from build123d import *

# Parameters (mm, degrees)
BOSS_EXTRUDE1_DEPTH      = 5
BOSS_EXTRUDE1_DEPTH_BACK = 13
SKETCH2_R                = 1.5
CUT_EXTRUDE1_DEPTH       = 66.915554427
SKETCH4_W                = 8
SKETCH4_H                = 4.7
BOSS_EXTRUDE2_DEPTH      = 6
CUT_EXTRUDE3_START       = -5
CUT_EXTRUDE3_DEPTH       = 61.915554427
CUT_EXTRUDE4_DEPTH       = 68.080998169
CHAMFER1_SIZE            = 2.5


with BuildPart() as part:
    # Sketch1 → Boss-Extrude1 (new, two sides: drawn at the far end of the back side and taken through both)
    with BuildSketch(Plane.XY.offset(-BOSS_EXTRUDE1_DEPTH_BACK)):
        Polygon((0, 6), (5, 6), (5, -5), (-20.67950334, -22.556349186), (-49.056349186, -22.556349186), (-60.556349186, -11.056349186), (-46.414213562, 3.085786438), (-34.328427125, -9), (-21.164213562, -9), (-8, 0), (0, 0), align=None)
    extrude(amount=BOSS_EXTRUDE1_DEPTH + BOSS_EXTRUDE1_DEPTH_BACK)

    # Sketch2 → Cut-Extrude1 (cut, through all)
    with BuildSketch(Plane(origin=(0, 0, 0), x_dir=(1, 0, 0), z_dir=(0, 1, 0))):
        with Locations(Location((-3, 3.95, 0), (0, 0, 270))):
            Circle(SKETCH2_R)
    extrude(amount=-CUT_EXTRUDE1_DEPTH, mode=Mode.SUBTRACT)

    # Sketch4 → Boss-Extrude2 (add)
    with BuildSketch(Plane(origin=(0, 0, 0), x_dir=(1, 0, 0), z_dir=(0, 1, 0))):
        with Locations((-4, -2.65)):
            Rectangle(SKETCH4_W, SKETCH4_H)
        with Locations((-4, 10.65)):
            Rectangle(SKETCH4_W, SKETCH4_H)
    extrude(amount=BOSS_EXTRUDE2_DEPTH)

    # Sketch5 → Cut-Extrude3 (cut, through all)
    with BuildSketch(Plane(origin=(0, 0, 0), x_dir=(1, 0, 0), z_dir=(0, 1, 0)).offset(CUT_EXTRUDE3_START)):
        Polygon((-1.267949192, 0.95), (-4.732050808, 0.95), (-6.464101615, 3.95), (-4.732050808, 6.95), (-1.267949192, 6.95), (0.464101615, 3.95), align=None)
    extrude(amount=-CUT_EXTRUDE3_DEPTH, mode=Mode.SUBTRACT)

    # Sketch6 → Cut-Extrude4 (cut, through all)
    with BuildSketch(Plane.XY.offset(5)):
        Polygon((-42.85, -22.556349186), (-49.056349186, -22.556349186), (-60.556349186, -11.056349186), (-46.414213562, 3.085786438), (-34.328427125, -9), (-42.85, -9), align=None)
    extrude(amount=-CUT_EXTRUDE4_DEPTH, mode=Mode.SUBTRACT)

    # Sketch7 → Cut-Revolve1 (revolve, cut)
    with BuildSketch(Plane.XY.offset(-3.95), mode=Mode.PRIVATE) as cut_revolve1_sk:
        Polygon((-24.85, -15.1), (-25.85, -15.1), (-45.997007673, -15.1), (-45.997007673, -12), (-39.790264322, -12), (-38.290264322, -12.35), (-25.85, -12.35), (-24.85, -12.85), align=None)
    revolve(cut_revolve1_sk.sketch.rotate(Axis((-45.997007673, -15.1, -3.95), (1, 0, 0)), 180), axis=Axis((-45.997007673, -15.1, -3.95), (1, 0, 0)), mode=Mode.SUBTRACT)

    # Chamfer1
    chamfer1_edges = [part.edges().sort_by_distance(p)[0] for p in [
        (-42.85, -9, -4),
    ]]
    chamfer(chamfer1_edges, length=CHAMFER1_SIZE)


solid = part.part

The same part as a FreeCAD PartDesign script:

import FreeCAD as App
import Part
import Sketcher
Q = App.Units.Quantity


def edges_at(feature, points):
    """Names of the edges that pass closest to the given points."""
    edges = feature.Shape.Edges
    near = lambda p: min(range(len(edges)), key=lambda i: edges[i].distToShape(Part.Vertex(*p))[0])
    return sorted({f"Edge{near(p) + 1}" for p in points})


def add_polygon(sketch, points):
    """Adds a closed chain of lines whose ends are joined by coincident constraints."""
    first, n = sketch.GeometryCount, len(points)
    for a, b in zip(points, points[1:] + points[:1]):
        sketch.addGeometry(Part.LineSegment(App.Vector(*a, 0), App.Vector(*b, 0)), False)
    for i in range(n):
        sketch.addConstraint(Sketcher.Constraint("Coincident", first + i, 2, first + (i + 1) % n, 1))

doc = App.newDocument("Part")
body = doc.addObject("PartDesign::Body", "Body")

sketch1 = body.newObject("Sketcher::SketchObject", "Sketch")
sketch1.AttachmentSupport = (doc.getObject("XY_Plane"), [""])
sketch1.MapMode = "FlatFace"
add_polygon(sketch1, [(5, 6), (0, 6), (0, 0), (-8, 0), (-21, -9), (-34, -9), (-46, 3), (-61, -11), (-49, -23), (-21, -23), (5, -5)])
sketch1.addConstraint([
    Sketcher.Constraint("Horizontal", 0),
    Sketcher.Constraint("Vertical", 1),
    Sketcher.Constraint("Horizontal", 2),
    Sketcher.Constraint("Horizontal", 4),
    Sketcher.Constraint("Horizontal", 8),
    Sketcher.Constraint("Vertical", 10),
    Sketcher.Constraint("Coincident", 1, 2, -1, 1),
    Sketcher.Constraint("Perpendicular", 5, 6),
    Sketcher.Constraint("Perpendicular", 6, 7),
    Sketcher.Constraint("Parallel", 3, 9),
    Sketcher.Constraint("DistanceX", 0, 2, 0, 1, Q("5 mm")),
    Sketcher.Constraint("DistanceX", 2, 2, 2, 1, Q("8 mm")),
    Sketcher.Constraint("DistanceY", 1, 2, 1, 1, Q("6 mm")),
    Sketcher.Constraint("DistanceY", 10, 1, 10, 2, Q("11 mm")),
    Sketcher.Constraint("Angle", 5, Q("135 deg")),
    Sketcher.Constraint("Distance", 6, Q("20 mm")),
    Sketcher.Constraint("DistanceY", 3, 2, -1, 1, Q("9 mm")),
    Sketcher.Constraint("DistanceX", 6, 2, 7, 2, Q("11.5 mm")),
    Sketcher.Constraint("DistanceX", 5, 2, 3, 2, Q("25.25 mm")),
    Sketcher.Constraint("Distance", 9, Q("31.107271 mm")),
    Sketcher.Constraint("DistanceX", 4, 2, 4, 1, Q("13.164214 mm")),
])
pad1 = body.newObject("PartDesign::Pad", "Pad")
pad1.Profile = sketch1
pad1.Type = "TwoLengths"
pad1.Length = 5
pad1.Length2 = 13

sketch2 = body.newObject("Sketcher::SketchObject", "Sketch001")
sketch2.AttachmentSupport = (doc.getObject("XZ_Plane"), [""])
sketch2.MapMode = "FlatFace"
sketch2.addGeometry(Part.Circle(App.Vector(-3, -4, 0), App.Vector(0, 0, 1), 1.5), False)
sketch2.addConstraint([
    Sketcher.Constraint("Diameter", 0, Q("3 mm")),
    Sketcher.Constraint("DistanceX", 0, 3, -1, 1, Q("3 mm")),
    Sketcher.Constraint("DistanceY", 0, 3, -1, 1, Q("3.95 mm")),
])
pocket1 = body.newObject("PartDesign::Pocket", "Pocket")
pocket1.Profile = sketch2
pocket1.Type = "ThroughAll"
pocket1.Reversed = True

sketch3 = body.newObject("Sketcher::SketchObject", "Sketch002")
sketch3.AttachmentSupport = (doc.getObject("XZ_Plane"), [""])
sketch3.MapMode = "FlatFace"
add_polygon(sketch3, [(-8, 0.3), (-8, 5), (0, 5), (0, 0.3)])
add_polygon(sketch3, [(-8, -13), (-8, -8.3), (0, -8.3), (0, -13)])
sketch3.addConstraint([
    Sketcher.Constraint("Vertical", 0),
    Sketcher.Constraint("Horizontal", 1),
    Sketcher.Constraint("Vertical", 2),
    Sketcher.Constraint("Horizontal", 3),
    Sketcher.Constraint("Vertical", 4),
    Sketcher.Constraint("Horizontal", 5),
    Sketcher.Constraint("Vertical", 6),
    Sketcher.Constraint("Horizontal", 7),
    Sketcher.Constraint("PointOnObject", 1, 2, -2),
    Sketcher.Constraint("PointOnObject", 5, 2, -2),
    Sketcher.Constraint("Vertical", 3, 2, 4, 2),
    Sketcher.Constraint("Equal", 2, 4),
    Sketcher.Constraint("DistanceX", 1, 1, 1, 2, Q("8 mm")),
    Sketcher.Constraint("DistanceY", 0, 1, 0, 2, Q("4.7 mm")),
    Sketcher.Constraint("DistanceY", -1, 1, 0, 2, Q("5 mm")),
    Sketcher.Constraint("DistanceY", 6, 2, -1, 1, Q("13 mm")),
])
pad2 = body.newObject("PartDesign::Pad", "Pad001")
pad2.Profile = sketch3
pad2.Length = 6
pad2.Reversed = True

sketch4 = body.newObject("Sketcher::SketchObject", "Sketch003")
sketch4.AttachmentSupport = (doc.getObject("XZ_Plane"), [""])
sketch4.MapMode = "FlatFace"
sketch4.AttachmentOffset = App.Placement(App.Vector(0, 0, 5), App.Rotation())
add_polygon(sketch4, [(-4.7, -0.9), (-1.3, -0.9), (0.5, -4), (-1.3, -7), (-4.7, -7), (-6.5, -4)])
sketch4.addConstraint([
    Sketcher.Constraint("Horizontal", 0),
    Sketcher.Constraint("Horizontal", 3),
    Sketcher.Constraint("Parallel", 1, 4),
    Sketcher.Constraint("Parallel", 2, 5),
    Sketcher.Constraint("Horizontal", 1, 2, 4, 2),
    Sketcher.Constraint("Vertical", 0, 2, 2, 2),
    Sketcher.Constraint("Vertical", 3, 2, 5, 2),
    Sketcher.Constraint("Angle", 1, Q("-60 deg")),
    Sketcher.Constraint("DistanceY", 1, 2, 0, 2, Q("3 mm")),
    Sketcher.Constraint("DistanceY", 0, 2, -1, 1, Q("0.95 mm")),
    Sketcher.Constraint("DistanceX", 0, 1, 0, 2, Q("3.464102 mm")),
    Sketcher.Constraint("DistanceX", -1, 1, 1, 2, Q("0.464102 mm")),
])
pocket2 = body.newObject("PartDesign::Pocket", "Pocket001")
pocket2.Profile = sketch4
pocket2.Type = "ThroughAll"
pocket2.Reversed = True

sketch5 = body.newObject("Sketcher::SketchObject", "Sketch004")
sketch5.AttachmentSupport = (doc.getObject("XY_Plane"), [""])
sketch5.MapMode = "FlatFace"
sketch5.AttachmentOffset = App.Placement(App.Vector(0, 0, 5), App.Rotation())
add_polygon(sketch5, [(-49, -23), (-43, -23), (-43, -9), (-34, -9), (-46, 3), (-61, -11)])
sketch5.addConstraint([
    Sketcher.Constraint("Horizontal", 0),
    Sketcher.Constraint("Vertical", 1),
    Sketcher.Constraint("Horizontal", 2),
    Sketcher.Constraint("Perpendicular", 3, 4),
    Sketcher.Constraint("Perpendicular", 4, 5),
    Sketcher.Constraint("Angle", 3, Q("135 deg")),
    Sketcher.Constraint("Distance", 4, Q("20 mm")),
    Sketcher.Constraint("DistanceY", 1, 2, -1, 1, Q("9 mm")),
    Sketcher.Constraint("DistanceY", 0, 2, 4, 2, Q("11.5 mm")),
    Sketcher.Constraint("DistanceX", 0, 2, -1, 1, Q("42.85 mm")),
    Sketcher.Constraint("DistanceX", 0, 1, 0, 2, Q("6.206349 mm")),
    Sketcher.Constraint("DistanceY", 1, 1, 1, 2, Q("13.556349 mm")),
])
pocket3 = body.newObject("PartDesign::Pocket", "Pocket002")
pocket3.Profile = sketch5
pocket3.Type = "ThroughAll"

sketch6 = body.newObject("Sketcher::SketchObject", "Sketch005")
sketch6.AttachmentSupport = (doc.getObject("XY_Plane"), [""])
sketch6.MapMode = "FlatFace"
sketch6.AttachmentOffset = App.Placement(App.Vector(0, 0, -3.95), App.Rotation())
add_polygon(sketch6, [(-46, -15.1), (-24.9, -15.1), (-24.9, -12.8), (-25.9, -12.3), (-38.3, -12.3), (-39.8, -12), (-46, -12)])
sketch6.addGeometry(Part.LineSegment(App.Vector(-46, -15.1, 0), App.Vector(-24.9, -15.1, 0)), True)
sketch6.addConstraint([
    Sketcher.Constraint("Horizontal", 0),
    Sketcher.Constraint("Vertical", 1),
    Sketcher.Constraint("Horizontal", 3),
    Sketcher.Constraint("Horizontal", 5),
    Sketcher.Constraint("Vertical", 6),
    Sketcher.Constraint("Horizontal", 7),
    Sketcher.Constraint("Coincident", 7, 1, 6, 2),
    Sketcher.Constraint("Vertical", 1, 2, 7, 2),
    Sketcher.Constraint("DistanceY", 6, 2, 6, 1, Q("3.1 mm")),
    Sketcher.Constraint("DistanceY", 4, 2, -1, 1, Q("12 mm")),
    Sketcher.Constraint("DistanceX", 2, 2, 1, 2, Q("1 mm")),
    Sketcher.Constraint("DistanceY", 1, 1, 1, 2, Q("2.25 mm")),
    Sketcher.Constraint("DistanceY", 1, 2, 2, 2, Q("0.5 mm")),
    Sketcher.Constraint("DistanceX", 4, 2, 3, 2, Q("1.5 mm")),
    Sketcher.Constraint("DistanceX", 0, 2, -1, 1, Q("24.85 mm")),
    Sketcher.Constraint("DistanceX", 0, 1, 0, 2, Q("21.147008 mm")),
    Sketcher.Constraint("DistanceX", 3, 2, 3, 1, Q("12.440264 mm")),
])
groove = body.newObject("PartDesign::Groove", "Groove")
groove.Profile = sketch6
groove.ReferenceAxis = (sketch6, ["Axis0"])
groove.Angle = 360
doc.recompute()

chamfer = body.newObject("PartDesign::Chamfer", "Chamfer")
chamfer.Base = (groove, edges_at(groove, [(-42.85, -9, -4)]))
chamfer.Size = 2.5

doc.recompute()
